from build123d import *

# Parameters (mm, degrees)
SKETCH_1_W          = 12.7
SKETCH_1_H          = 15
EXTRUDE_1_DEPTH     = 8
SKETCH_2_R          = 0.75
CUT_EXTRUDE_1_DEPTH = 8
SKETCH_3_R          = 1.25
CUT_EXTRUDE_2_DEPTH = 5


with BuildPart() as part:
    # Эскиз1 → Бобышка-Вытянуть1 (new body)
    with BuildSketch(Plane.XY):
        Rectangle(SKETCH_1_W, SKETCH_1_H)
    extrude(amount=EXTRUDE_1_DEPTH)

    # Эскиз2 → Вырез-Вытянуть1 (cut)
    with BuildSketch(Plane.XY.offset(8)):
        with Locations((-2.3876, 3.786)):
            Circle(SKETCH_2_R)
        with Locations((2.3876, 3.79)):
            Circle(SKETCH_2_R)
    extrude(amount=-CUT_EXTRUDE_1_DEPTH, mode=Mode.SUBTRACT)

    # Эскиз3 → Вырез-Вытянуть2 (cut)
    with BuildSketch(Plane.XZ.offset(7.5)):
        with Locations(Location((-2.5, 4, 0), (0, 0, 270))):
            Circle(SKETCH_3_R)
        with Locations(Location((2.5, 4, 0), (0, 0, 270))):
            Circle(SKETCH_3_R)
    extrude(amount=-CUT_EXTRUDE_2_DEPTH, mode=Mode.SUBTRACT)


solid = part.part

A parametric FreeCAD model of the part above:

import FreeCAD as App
import Part
import Sketcher

V = App.Vector
Q = App.Units.Quantity


def add_polygon(sketch, points):
    """Adds a closed chain of lines whose ends are joined by coincident constraints."""
    first, n = sketch.GeometryCount, len(points)
    for a, b in zip(points, points[1:] + points[:1]):
        sketch.addGeometry(Part.LineSegment(App.Vector(*a, 0), App.Vector(*b, 0)), False)
    for i in range(n):
        sketch.addConstraint(Sketcher.Constraint("Coincident", first + i, 2, first + (i + 1) % n, 1))

doc = App.newDocument("Part")
body = doc.addObject("PartDesign::Body", "Body")

# Sketch on XY plane
sketch1 = body.newObject("Sketcher::SketchObject", "Sketch")
sketch1.AttachmentSupport = (doc.getObject("XY_Plane"), [""])
sketch1.MapMode = "FlatFace"
add_polygon(sketch1, [(-6, 8), (-6, -8), (6, -8), (6, 8)])  # lines 0-3
sketch1.addConstraint(Sketcher.Constraint("Vertical", 0))
sketch1.addConstraint(Sketcher.Constraint("Horizontal", 1))
sketch1.addConstraint(Sketcher.Constraint("Vertical", 2))
sketch1.addConstraint(Sketcher.Constraint("Horizontal", 3))
sketch1.addConstraint(Sketcher.Constraint("Symmetric", 0, 2, 2, 2, -1, 1))
sketch1.addConstraint(Sketcher.Constraint("DistanceY", 0, 2, 0, 1, Q("15 mm")))
sketch1.addConstraint(Sketcher.Constraint("DistanceX", 1, 1, 1, 2, Q("12.7 mm")))
pad1 = body.newObject("PartDesign::Pad", "Pad")
pad1.Profile = sketch1
pad1.Length = 8

# Sketch on XY plane
sketch2 = body.newObject("Sketcher::SketchObject", "Sketch001")
sketch2.AttachmentSupport = (doc.getObject("XY_Plane"), [""])
sketch2.MapMode = "FlatFace"
sketch2.AttachmentOffset = App.Placement(V(0, 0, 8), App.Rotation())
sketch2.addGeometry(Part.Circle(V(-2.4, 3.8, 0), V(0, 0, 1), 0.8), False)
sketch2.addGeometry(Part.Circle(V(2.4, 3.8, 0), V(0, 0, 1), 0.8), False)
sketch2.addConstraint(Sketcher.Constraint("Equal", 0, 1))
sketch2.addConstraint(Sketcher.Constraint("Diameter", 0, Q("1.5 mm")))
sketch2.addConstraint(Sketcher.Constraint("DistanceY", -1, 1, 1, 3, Q("3.79 mm")))
sketch2.addConstraint(Sketcher.Constraint("DistanceY", -1, 1, 0, 3, Q("3.786 mm")))
sketch2.addConstraint(Sketcher.Constraint("DistanceX", 0, 3, -1, 1, Q("2.3876 mm")))
sketch2.addConstraint(Sketcher.Constraint("DistanceX", -1, 1, 1, 3, Q("2.3876 mm")))
pocket1 = body.newObject("PartDesign::Pocket", "Pocket")
pocket1.Profile = sketch2
pocket1.Length = 8

# Sketch on XZ plane
sketch3 = body.newObject("Sketcher::SketchObject", "Sketch002")
sketch3.AttachmentSupport = (doc.getObject("XZ_Plane"), [""])
sketch3.MapMode = "FlatFace"
sketch3.AttachmentOffset = App.Placement(V(0, 0, 7.5), App.Rotation())
sketch3.addGeometry(Part.Circle(V(-2.5, 4, 0), V(0, 0, 1), 1.2), False)
sketch3.addGeometry(Part.Circle(V(2.5, 4, 0), V(0, 0, 1), 1.2), False)
sketch3.addConstraint(Sketcher.Constraint("Equal", 0, 1))
sketch3.addConstraint(Sketcher.Constraint("Symmetric", 0, 3, 1, 3, -2))
sketch3.addConstraint(Sketcher.Constraint("Diameter", 0, Q("2.5 mm")))
sketch3.addConstraint(Sketcher.Constraint("DistanceY", -1, 1, 0, 3, Q("4 mm")))
sketch3.addConstraint(Sketcher.Constraint("DistanceX", 0, 3, 1, 3, Q("5 mm")))
pocket2 = body.newObject("PartDesign::Pocket", "Pocket001")
pocket2.Profile = sketch3
pocket2.Length = 5

doc.recompute()
